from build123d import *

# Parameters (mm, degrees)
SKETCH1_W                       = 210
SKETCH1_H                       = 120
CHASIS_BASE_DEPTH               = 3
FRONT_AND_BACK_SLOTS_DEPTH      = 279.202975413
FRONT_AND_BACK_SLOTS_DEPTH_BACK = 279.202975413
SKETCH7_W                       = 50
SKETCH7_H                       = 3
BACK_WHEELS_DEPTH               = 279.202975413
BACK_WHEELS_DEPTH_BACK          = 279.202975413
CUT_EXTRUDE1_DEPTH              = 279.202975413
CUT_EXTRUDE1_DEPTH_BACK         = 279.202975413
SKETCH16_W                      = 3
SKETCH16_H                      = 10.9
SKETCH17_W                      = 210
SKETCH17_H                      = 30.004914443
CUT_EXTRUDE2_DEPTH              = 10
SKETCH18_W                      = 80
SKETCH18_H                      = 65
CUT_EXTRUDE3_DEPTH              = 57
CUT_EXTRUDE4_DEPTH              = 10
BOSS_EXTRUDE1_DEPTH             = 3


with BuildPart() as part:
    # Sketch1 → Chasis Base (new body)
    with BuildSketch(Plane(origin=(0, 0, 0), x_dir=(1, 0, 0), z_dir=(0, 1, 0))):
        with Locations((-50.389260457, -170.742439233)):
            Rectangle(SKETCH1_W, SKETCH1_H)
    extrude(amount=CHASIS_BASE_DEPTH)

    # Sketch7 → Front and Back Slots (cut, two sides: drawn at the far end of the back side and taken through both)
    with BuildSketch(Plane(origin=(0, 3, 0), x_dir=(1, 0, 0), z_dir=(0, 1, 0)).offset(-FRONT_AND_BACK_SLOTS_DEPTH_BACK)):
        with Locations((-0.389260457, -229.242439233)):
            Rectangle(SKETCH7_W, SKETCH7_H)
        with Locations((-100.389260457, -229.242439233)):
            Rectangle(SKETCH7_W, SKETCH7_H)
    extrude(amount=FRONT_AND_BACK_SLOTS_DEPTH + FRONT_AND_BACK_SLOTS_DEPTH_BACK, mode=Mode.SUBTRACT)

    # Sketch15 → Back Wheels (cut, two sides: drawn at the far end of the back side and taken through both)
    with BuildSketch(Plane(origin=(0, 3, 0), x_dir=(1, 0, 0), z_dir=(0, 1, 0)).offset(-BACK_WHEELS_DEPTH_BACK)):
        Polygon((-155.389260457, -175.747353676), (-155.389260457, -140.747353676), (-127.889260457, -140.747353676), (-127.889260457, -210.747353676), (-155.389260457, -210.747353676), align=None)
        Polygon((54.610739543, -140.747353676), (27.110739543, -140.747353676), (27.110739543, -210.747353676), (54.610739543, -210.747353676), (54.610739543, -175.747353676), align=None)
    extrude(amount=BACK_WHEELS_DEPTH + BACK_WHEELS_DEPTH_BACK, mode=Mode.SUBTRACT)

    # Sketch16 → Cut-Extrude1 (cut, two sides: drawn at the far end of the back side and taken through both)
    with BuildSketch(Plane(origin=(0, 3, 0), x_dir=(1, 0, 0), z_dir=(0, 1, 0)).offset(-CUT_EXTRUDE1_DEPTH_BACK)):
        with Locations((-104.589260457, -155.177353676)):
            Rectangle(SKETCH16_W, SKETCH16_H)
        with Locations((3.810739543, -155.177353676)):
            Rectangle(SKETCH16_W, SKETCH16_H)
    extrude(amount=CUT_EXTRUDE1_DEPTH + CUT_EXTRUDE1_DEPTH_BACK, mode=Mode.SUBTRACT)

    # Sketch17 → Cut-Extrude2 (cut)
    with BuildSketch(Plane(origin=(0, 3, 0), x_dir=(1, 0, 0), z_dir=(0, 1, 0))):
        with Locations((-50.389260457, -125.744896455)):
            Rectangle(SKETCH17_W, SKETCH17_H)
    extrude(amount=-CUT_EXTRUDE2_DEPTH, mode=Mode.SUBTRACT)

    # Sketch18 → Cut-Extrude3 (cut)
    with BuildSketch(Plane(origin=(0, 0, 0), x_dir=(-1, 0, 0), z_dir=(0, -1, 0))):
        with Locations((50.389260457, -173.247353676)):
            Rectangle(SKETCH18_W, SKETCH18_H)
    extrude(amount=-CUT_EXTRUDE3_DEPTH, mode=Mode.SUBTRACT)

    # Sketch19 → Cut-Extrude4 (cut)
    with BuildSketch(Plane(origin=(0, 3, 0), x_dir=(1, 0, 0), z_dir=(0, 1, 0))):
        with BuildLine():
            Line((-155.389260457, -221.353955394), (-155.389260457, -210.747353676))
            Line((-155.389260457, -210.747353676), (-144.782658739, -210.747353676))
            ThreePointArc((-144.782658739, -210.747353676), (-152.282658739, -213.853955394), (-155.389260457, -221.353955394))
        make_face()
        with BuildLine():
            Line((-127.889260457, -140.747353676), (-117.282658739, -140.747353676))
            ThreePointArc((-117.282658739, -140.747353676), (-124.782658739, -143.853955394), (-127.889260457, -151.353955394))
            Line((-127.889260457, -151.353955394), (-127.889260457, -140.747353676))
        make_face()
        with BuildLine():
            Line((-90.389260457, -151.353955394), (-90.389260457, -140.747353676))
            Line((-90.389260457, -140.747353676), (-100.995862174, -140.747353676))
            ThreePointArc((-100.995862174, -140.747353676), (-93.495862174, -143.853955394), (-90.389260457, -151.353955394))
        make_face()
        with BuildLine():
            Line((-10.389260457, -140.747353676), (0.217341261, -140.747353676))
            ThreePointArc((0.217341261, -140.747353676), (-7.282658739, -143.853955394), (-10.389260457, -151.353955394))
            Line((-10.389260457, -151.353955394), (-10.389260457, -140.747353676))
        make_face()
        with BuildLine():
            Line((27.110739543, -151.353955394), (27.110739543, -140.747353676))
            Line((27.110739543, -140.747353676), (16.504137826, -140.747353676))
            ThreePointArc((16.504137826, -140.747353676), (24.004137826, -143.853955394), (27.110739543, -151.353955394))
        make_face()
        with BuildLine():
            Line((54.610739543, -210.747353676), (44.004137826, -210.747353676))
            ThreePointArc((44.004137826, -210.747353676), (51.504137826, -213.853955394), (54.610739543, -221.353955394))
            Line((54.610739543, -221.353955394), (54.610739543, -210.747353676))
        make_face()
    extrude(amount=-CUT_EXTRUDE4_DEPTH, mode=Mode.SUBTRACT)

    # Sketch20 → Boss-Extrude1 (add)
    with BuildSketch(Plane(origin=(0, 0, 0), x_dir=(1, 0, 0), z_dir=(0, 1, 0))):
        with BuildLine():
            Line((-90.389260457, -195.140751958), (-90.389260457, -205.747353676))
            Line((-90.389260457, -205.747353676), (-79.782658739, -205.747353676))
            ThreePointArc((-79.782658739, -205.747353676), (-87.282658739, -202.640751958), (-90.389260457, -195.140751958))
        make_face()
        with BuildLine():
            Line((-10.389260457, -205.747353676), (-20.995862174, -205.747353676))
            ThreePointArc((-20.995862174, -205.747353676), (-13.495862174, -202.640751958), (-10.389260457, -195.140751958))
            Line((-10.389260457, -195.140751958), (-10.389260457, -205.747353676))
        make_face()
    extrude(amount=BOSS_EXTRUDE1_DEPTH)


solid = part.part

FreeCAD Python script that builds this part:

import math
import FreeCAD as App
import Part
import Sketcher

doc = App.newDocument("Part")
params = doc.addObject("Spreadsheet::Sheet", "Params")
for row, (alias, value) in enumerate([
    ("sketch1_width", "210 mm"),
    ("sketch1_height", "120 mm"),
    ("pad1_length", "3 mm"),
    ("sketch2_width", "50 mm"),
    ("sketch2_height", "3 mm"),
    ("sketch3_height", "70 mm"),
    ("sketch3_width", "27.5 mm"),
    ("sketch4_width", "3 mm"),
    ("sketch4_height", "10.9 mm"),
    ("sketch5_width", "210 mm"),
    ("pocket4_length", "10 mm"),
    ("sketch6_width", "80 mm"),
    ("sketch6_height", "65 mm"),
    ("pocket5_length", "57 mm"),
    ("pocket6_length", "10 mm"),
    ("pad2_length", "3 mm"),
], start=1):
    params.set(f"A{row}", alias)
    params.set(f"B{row}", "=" + value)
    params.setAlias(f"B{row}", alias)

body = doc.addObject("PartDesign::Body", "Body")

sketch1 = body.newObject("Sketcher::SketchObject", "Sketch")
sketch1.AttachmentSupport = (doc.getObject("XZ_Plane"), [""])
sketch1.MapMode = "FlatFace"
sketch1.addGeometry([
    Part.LineSegment(App.Vector(-155, 111, 0), App.Vector(-155, 231, 0)),
    Part.LineSegment(App.Vector(-155, 231, 0), App.Vector(55, 231, 0)),
    Part.LineSegment(App.Vector(55, 231, 0), App.Vector(55, 111, 0)),
    Part.LineSegment(App.Vector(55, 111, 0), App.Vector(-155, 111, 0)),
], False)
sketch1.addConstraint([
    Sketcher.Constraint("Coincident", 0, 2, 1, 1),
    Sketcher.Constraint("Coincident", 1, 2, 2, 1),
    Sketcher.Constraint("Coincident", 2, 2, 3, 1),
    Sketcher.Constraint("Coincident", 3, 2, 0, 1),
    Sketcher.Constraint("Vertical", 0),
    Sketcher.Constraint("Horizontal", 1),
    Sketcher.Constraint("Vertical", 2),
    Sketcher.Constraint("Horizontal", 3),
    Sketcher.Constraint("DistanceX", 1, 1, 1, 2, 210.0),
    Sketcher.Constraint("DistanceY", 0, 1, 0, 2, 120.0),
    Sketcher.Constraint("DistanceX", 0, 2, -1, 1, 155.38926),
    Sketcher.Constraint("DistanceY", -1, 1, 0, 2, 230.742439),
])
sketch1.setExpression("Constraints[8]", "Params.sketch1_width")
sketch1.setExpression("Constraints[9]", "Params.sketch1_height")
pad1 = body.newObject("PartDesign::Pad", "Pad")
pad1.Profile = sketch1
pad1.setExpression("Length", "Params.pad1_length")
pad1.Reversed = True

sketch2 = body.newObject("Sketcher::SketchObject", "Sketch001")
sketch2.AttachmentSupport = (doc.getObject("XZ_Plane"), [""])
sketch2.MapMode = "FlatFace"
sketch2.AttachmentOffset = App.Placement(App.Vector(0, 0, -3), App.Rotation())
sketch2.addGeometry([
    Part.LineSegment(App.Vector(-25.4, 227.7, 0), App.Vector(-25.4, 230.7, 0)),
    Part.LineSegment(App.Vector(-25.4, 230.7, 0), App.Vector(24.6, 230.7, 0)),
    Part.LineSegment(App.Vector(24.6, 230.7, 0), App.Vector(24.6, 227.7, 0)),
    Part.LineSegment(App.Vector(24.6, 227.7, 0), App.Vector(-25.4, 227.7, 0)),
    Part.LineSegment(App.Vector(-125.4, 227.7, 0), App.Vector(-125.4, 230.7, 0)),
    Part.LineSegment(App.Vector(-125.4, 230.7, 0), App.Vector(-75.4, 230.7, 0)),
    Part.LineSegment(App.Vector(-75.4, 230.7, 0), App.Vector(-75.4, 227.7, 0)),
    Part.LineSegment(App.Vector(-75.4, 227.7, 0), App.Vector(-125.4, 227.7, 0)),
], False)
sketch2.addConstraint([
    Sketcher.Constraint("Coincident", 0, 2, 1, 1),
    Sketcher.Constraint("Coincident", 1, 2, 2, 1),
    Sketcher.Constraint("Coincident", 2, 2, 3, 1),
    Sketcher.Constraint("Coincident", 3, 2, 0, 1),
    Sketcher.Constraint("Coincident", 4, 2, 5, 1),
    Sketcher.Constraint("Coincident", 5, 2, 6, 1),
    Sketcher.Constraint("Coincident", 6, 2, 7, 1),
    Sketcher.Constraint("Coincident", 7, 2, 4, 1),
    Sketcher.Constraint("Vertical", 0),
    Sketcher.Constraint("Horizontal", 1),
    Sketcher.Constraint("Vertical", 2),
    Sketcher.Constraint("Horizontal", 3),
    Sketcher.Constraint("Vertical", 4),
    Sketcher.Constraint("Horizontal", 5),
    Sketcher.Constraint("Vertical", 6),
    Sketcher.Constraint("Horizontal", 7),
    Sketcher.Constraint("Horizontal", 1, 2, 4, 2),
    Sketcher.Constraint("Horizontal", 3, 2, 6, 2),
    Sketcher.Constraint("Equal", 3, 5),
    Sketcher.Constraint("DistanceX", 1, 1, 1, 2, 50.0),
    Sketcher.Constraint("DistanceY", 0, 1, 0, 2, 3.0),
    Sketcher.Constraint("DistanceX", 4, 2, 0, 2, 100.0),
    Sketcher.Constraint("DistanceX", 0, 2, -1, 1, 25.38926),
    Sketcher.Constraint("DistanceY", -1, 1, 0, 2, 230.742439),
])
sketch2.setExpression("Constraints[19]", "Params.sketch2_width")
sketch2.setExpression("Constraints[20]", "Params.sketch2_height")
pocket1 = body.newObject("PartDesign::Pocket", "Pocket")
pocket1.Profile = sketch2
pocket1.Type = "ThroughAll"
pocket1.Midplane = True

sketch3 = body.newObject("Sketcher::SketchObject", "Sketch002")
sketch3.AttachmentSupport = (doc.getObject("XZ_Plane"), [""])
sketch3.MapMode = "FlatFace"
sketch3.AttachmentOffset = App.Placement(App.Vector(0, 0, -3), App.Rotation())
sketch3.addGeometry([
    Part.LineSegment(App.Vector(-155, 141, 0), App.Vector(-155, 211, 0)),
    Part.LineSegment(App.Vector(-155, 211, 0), App.Vector(-128, 211, 0)),
    Part.LineSegment(App.Vector(-128, 211, 0), App.Vector(-128, 141, 0)),
    Part.LineSegment(App.Vector(-128, 141, 0), App.Vector(-155, 141, 0)),
    Part.LineSegment(App.Vector(55, 141, 0), App.Vector(27, 141, 0)),
    Part.LineSegment(App.Vector(27, 141, 0), App.Vector(27, 211, 0)),
    Part.LineSegment(App.Vector(27, 211, 0), App.Vector(55, 211, 0)),
    Part.LineSegment(App.Vector(55, 211, 0), App.Vector(55, 141, 0)),
], False)
sketch3.addConstraint([
    Sketcher.Constraint("Coincident", 0, 2, 1, 1),
    Sketcher.Constraint("Coincident", 1, 2, 2, 1),
    Sketcher.Constraint("Coincident", 2, 2, 3, 1),
    Sketcher.Constraint("Coincident", 3, 2, 0, 1),
    Sketcher.Constraint("Coincident", 4, 2, 5, 1),
    Sketcher.Constraint("Coincident", 5, 2, 6, 1),
    Sketcher.Constraint("Coincident", 6, 2, 7, 1),
    Sketcher.Constraint("Coincident", 7, 2, 4, 1),
    Sketcher.Constraint("Vertical", 0),
    Sketcher.Constraint("Horizontal", 1),
    Sketcher.Constraint("Vertical", 2),
    Sketcher.Constraint("Horizontal", 3),
    Sketcher.Constraint("Horizontal", 4),
    Sketcher.Constraint("Vertical", 5),
    Sketcher.Constraint("Horizontal", 6),
    Sketcher.Constraint("Vertical", 7),
    Sketcher.Constraint("Horizontal", 3, 2, 4, 2),
    Sketcher.Constraint("Horizontal", 1, 2, 5, 2),
    Sketcher.Constraint("Equal", 3, 4),
    Sketcher.Constraint("DistanceY", 0, 1, 0, 2, 70.0),
    Sketcher.Constraint("DistanceX", 1, 1, 1, 2, 27.5),
    Sketcher.Constraint("DistanceX", 2, 2, 4, 2, 155.0),
    Sketcher.Constraint("DistanceX", 0, 2, -1, 1, 155.38926),
    Sketcher.Constraint("DistanceY", -1, 1, 0, 2, 210.747354),
])
sketch3.setExpression("Constraints[19]", "Params.sketch3_height")
sketch3.setExpression("Constraints[20]", "Params.sketch3_width")
pocket2 = body.newObject("PartDesign::Pocket", "Pocket001")
pocket2.Profile = sketch3
pocket2.Type = "ThroughAll"
pocket2.Midplane = True

sketch4 = body.newObject("Sketcher::SketchObject", "Sketch003")
sketch4.AttachmentSupport = (doc.getObject("XZ_Plane"), [""])
sketch4.MapMode = "FlatFace"
sketch4.AttachmentOffset = App.Placement(App.Vector(0, 0, -3), App.Rotation())
sketch4.addGeometry([
    Part.LineSegment(App.Vector(-106.1, 149.7, 0), App.Vector(-106.1, 160.6, 0)),
    Part.LineSegment(App.Vector(-106.1, 160.6, 0), App.Vector(-103.1, 160.6, 0)),
    Part.LineSegment(App.Vector(-103.1, 160.6, 0), App.Vector(-103.1, 149.7, 0)),
    Part.LineSegment(App.Vector(-103.1, 149.7, 0), App.Vector(-106.1, 149.7, 0)),
    Part.LineSegment(App.Vector(2.3, 149.7, 0), App.Vector(2.3, 160.6, 0)),
    Part.LineSegment(App.Vector(2.3, 160.6, 0), App.Vector(5.3, 160.6, 0)),
    Part.LineSegment(App.Vector(5.3, 160.6, 0), App.Vector(5.3, 149.7, 0)),
    Part.LineSegment(App.Vector(5.3, 149.7, 0), App.Vector(2.3, 149.7, 0)),
], False)
sketch4.addConstraint([
    Sketcher.Constraint("Coincident", 0, 2, 1, 1),
    Sketcher.Constraint("Coincident", 1, 2, 2, 1),
    Sketcher.Constraint("Coincident", 2, 2, 3, 1),
    Sketcher.Constraint("Coincident", 3, 2, 0, 1),
    Sketcher.Constraint("Coincident", 4, 2, 5, 1),
    Sketcher.Constraint("Coincident", 5, 2, 6, 1),
    Sketcher.Constraint("Coincident", 6, 2, 7, 1),
    Sketcher.Constraint("Coincident", 7, 2, 4, 1),
    Sketcher.Constraint("Vertical", 0),
    Sketcher.Constraint("Horizontal", 1),
    Sketcher.Constraint("Vertical", 2),
    Sketcher.Constraint("Horizontal", 3),
    Sketcher.Constraint("Vertical", 4),
    Sketcher.Constraint("Horizontal", 5),
    Sketcher.Constraint("Vertical", 6),
    Sketcher.Constraint("Horizontal", 7),
    Sketcher.Constraint("Horizontal", 1, 2, 4, 2),
    Sketcher.Constraint("Horizontal", 3, 2, 6, 2),
    Sketcher.Constraint("Equal", 3, 5),
    Sketcher.Constraint("DistanceX", 1, 1, 1, 2, 3.0),
    Sketcher.Constraint("DistanceY", 0, 1, 0, 2, 10.9),
    Sketcher.Constraint("DistanceX", 1, 2, 4, 2, 105.4),
    Sketcher.Constraint("DistanceX", 0, 2, -1, 1, 106.08926),
    Sketcher.Constraint("DistanceY", -1, 1, 0, 2, 160.627354),
])
sketch4.setExpression("Constraints[19]", "Params.sketch4_width")
sketch4.setExpression("Constraints[20]", "Params.sketch4_height")
pocket3 = body.newObject("PartDesign::Pocket", "Pocket002")
pocket3.Profile = sketch4
pocket3.Type = "ThroughAll"
pocket3.Midplane = True

sketch5 = body.newObject("Sketcher::SketchObject", "Sketch004")
sketch5.AttachmentSupport = (doc.getObject("XZ_Plane"), [""])
sketch5.MapMode = "FlatFace"
sketch5.AttachmentOffset = App.Placement(App.Vector(0, 0, -3), App.Rotation())
sketch5.addGeometry([
    Part.LineSegment(App.Vector(-155, 111, 0), App.Vector(-155, 141, 0)),
    Part.LineSegment(App.Vector(-155, 141, 0), App.Vector(55, 141, 0)),
    Part.LineSegment(App.Vector(55, 141, 0), App.Vector(55, 111, 0)),
    Part.LineSegment(App.Vector(55, 111, 0), App.Vector(-155, 111, 0)),
], False)
sketch5.addConstraint([
    Sketcher.Constraint("Coincident", 0, 2, 1, 1),
    Sketcher.Constraint("Coincident", 1, 2, 2, 1),
    Sketcher.Constraint("Coincident", 2, 2, 3, 1),
    Sketcher.Constraint("Coincident", 3, 2, 0, 1),
    Sketcher.Constraint("Vertical", 0),
    Sketcher.Constraint("Horizontal", 1),
    Sketcher.Constraint("Vertical", 2),
    Sketcher.Constraint("Horizontal", 3),
    Sketcher.Constraint("DistanceX", 1, 1, 1, 2, 210.0),
    Sketcher.Constraint("DistanceY", 0, 1, 0, 2, 30.004914),
    Sketcher.Constraint("DistanceX", 0, 2, -1, 1, 155.38926),
    Sketcher.Constraint("DistanceY", -1, 1, 2, 2, 110.742439),
])
sketch5.setExpression("Constraints[8]", "Params.sketch5_width")
pocket4 = body.newObject("PartDesign::Pocket", "Pocket003")
pocket4.Profile = sketch5
pocket4.setExpression("Length", "Params.pocket4_length")
pocket4.Reversed = True

sketch6 = body.newObject("Sketcher::SketchObject", "Sketch005")
sketch6.AttachmentSupport = (doc.getObject("XZ_Plane"), [""])
sketch6.MapMode = "FlatFace"
sketch6.addGeometry([
    Part.LineSegment(App.Vector(-10, 141, 0), App.Vector(-10, 206, 0)),
    Part.LineSegment(App.Vector(-10, 206, 0), App.Vector(-90, 206, 0)),
    Part.LineSegment(App.Vector(-90, 206, 0), App.Vector(-90, 141, 0)),
    Part.LineSegment(App.Vector(-90, 141, 0), App.Vector(-10, 141, 0)),
], False)
sketch6.addConstraint([
    Sketcher.Constraint("Coincident", 0, 2, 1, 1),
    Sketcher.Constraint("Coincident", 1, 2, 2, 1),
    Sketcher.Constraint("Coincident", 2, 2, 3, 1),
    Sketcher.Constraint("Coincident", 3, 2, 0, 1),
    Sketcher.Constraint("Vertical", 0),
    Sketcher.Constraint("Horizontal", 1),
    Sketcher.Constraint("Vertical", 2),
    Sketcher.Constraint("Horizontal", 3),
    Sketcher.Constraint("DistanceX", 1, 2, 1, 1, 80.0),
    Sketcher.Constraint("DistanceY", 0, 1, 0, 2, 65.0),
    Sketcher.Constraint("DistanceX", 0, 2, -1, 1, 10.38926),
    Sketcher.Constraint("DistanceY", -1, 1, 0, 2, 205.747354),
])
sketch6.setExpression("Constraints[8]", "Params.sketch6_width")
sketch6.setExpression("Constraints[9]", "Params.sketch6_height")
pocket5 = body.newObject("PartDesign::Pocket", "Pocket004")
pocket5.Profile = sketch6
pocket5.setExpression("Length", "Params.pocket5_length")

sketch7 = body.newObject("Sketcher::SketchObject", "Sketch006")
sketch7.AttachmentSupport = (doc.getObject("XZ_Plane"), [""])
sketch7.MapMode = "FlatFace"
sketch7.AttachmentOffset = App.Placement(App.Vector(0, 0, -3), App.Rotation())
sketch7.addGeometry([
    Part.LineSegment(App.Vector(-155, 211, 0), App.Vector(-155, 221, 0)),
    Part.ArcOfCircle(Part.Circle(App.Vector(-145, 221, 0), App.Vector(0, 0, 1), 11), math.radians(180), math.radians(270)),
    Part.LineSegment(App.Vector(-145, 211, 0), App.Vector(-155, 211, 0)),
    Part.LineSegment(App.Vector(-117, 141, 0), App.Vector(-128, 141, 0)),
    Part.LineSegment(App.Vector(-128, 141, 0), App.Vector(-128, 151, 0)),
    Part.ArcOfCircle(Part.Circle(App.Vector(-117, 151, 0), App.Vector(0, 0, 1), 11), math.radians(180), math.radians(270)),
    Part.LineSegment(App.Vector(-90, 151, 0), App.Vector(-90, 141, 0)),
    Part.LineSegment(App.Vector(-90, 141, 0), App.Vector(-101, 141, 0)),
    Part.ArcOfCircle(Part.Circle(App.Vector(-101, 151, 0), App.Vector(0, 0, 1), 11), math.radians(-90), math.radians(0)),
    Part.LineSegment(App.Vector(0, 141, 0), App.Vector(-10, 141, 0)),
    Part.LineSegment(App.Vector(-10, 141, 0), App.Vector(-10, 151, 0)),
    Part.ArcOfCircle(Part.Circle(App.Vector(0, 151, 0), App.Vector(0, 0, 1), 11), math.radians(180), math.radians(270)),
    Part.LineSegment(App.Vector(27, 151, 0), App.Vector(27, 141, 0)),
    Part.LineSegment(App.Vector(27, 141, 0), App.Vector(17, 141, 0)),
    Part.ArcOfCircle(Part.Circle(App.Vector(17, 151, 0), App.Vector(0, 0, 1), 11), math.radians(-90), math.radians(0)),
    Part.LineSegment(App.Vector(55, 211, 0), App.Vector(44, 211, 0)),
    Part.ArcOfCircle(Part.Circle(App.Vector(44, 221, 0), App.Vector(0, 0, 1), 11), math.radians(-90), math.radians(0)),
    Part.LineSegment(App.Vector(55, 221, 0), App.Vector(55, 211, 0)),
], False)
sketch7.addConstraint([
    Sketcher.Constraint("Tangent", 0, 2, 1, 1),
    Sketcher.Constraint("Tangent", 1, 2, 2, 1),
    Sketcher.Constraint("Coincident", 2, 2, 0, 1),
    Sketcher.Constraint("Coincident", 3, 2, 4, 1),
    Sketcher.Constraint("Tangent", 4, 2, 5, 1),
    Sketcher.Constraint("Tangent", 5, 2, 3, 1),
    Sketcher.Constraint("Coincident", 6, 2, 7, 1),
    Sketcher.Constraint("Tangent", 7, 2, 8, 1),
    Sketcher.Constraint("Tangent", 8, 2, 6, 1),
    Sketcher.Constraint("Coincident", 9, 2, 10, 1),
    Sketcher.Constraint("Tangent", 10, 2, 11, 1),
    Sketcher.Constraint("Tangent", 11, 2, 9, 1),
    Sketcher.Constraint("Coincident", 12, 2, 13, 1),
    Sketcher.Constraint("Tangent", 13, 2, 14, 1),
    Sketcher.Constraint("Tangent", 14, 2, 12, 1),
    Sketcher.Constraint("Tangent", 15, 2, 16, 1),
    Sketcher.Constraint("Tangent", 16, 2, 17, 1),
    Sketcher.Constraint("Coincident", 17, 2, 15, 1),
    Sketcher.Constraint("Vertical", 0),
    Sketcher.Constraint("Horizontal", 2),
    Sketcher.Constraint("Horizontal", 3),
    Sketcher.Constraint("Vertical", 4),
    Sketcher.Constraint("Vertical", 6),
    Sketcher.Constraint("Horizontal", 7),
    Sketcher.Constraint("Horizontal", 9),
    Sketcher.Constraint("Vertical", 10),
    Sketcher.Constraint("Vertical", 12),
    Sketcher.Constraint("Horizontal", 13),
    Sketcher.Constraint("Horizontal", 15),
    Sketcher.Constraint("Vertical", 17),
    Sketcher.Constraint("Equal", 1, 5),
    Sketcher.Constraint("Equal", 5, 8),
    Sketcher.Constraint("Equal", 8, 11),
    Sketcher.Constraint("Equal", 11, 14),
    Sketcher.Constraint("Equal", 14, 16),
    Sketcher.Constraint("Horizontal", 5, 3, 8, 3),
    Sketcher.Constraint("Horizontal", 8, 3, 11, 3),
    Sketcher.Constraint("Horizontal", 11, 3, 14, 3),
    Sketcher.Constraint("Horizontal", 1, 3, 16, 3),
    Sketcher.Constraint("DistanceY", 5, 3, 1, 3, 70.0),
    Sketcher.Constraint("DistanceX", 1, 3, 11, 3, 145.0),
    Sketcher.Constraint("DistanceX", 8, 3, 16, 3, 145.0),
    Sketcher.Constraint("DistanceX", 6, 2, 9, 2, 80.0),
    Sketcher.Constraint("Radius", 1, 10.606602),
    Sketcher.Constraint("DistanceX", 1, 3, 5, 3, 27.5),
    Sketcher.Constraint("DistanceX", 8, 3, 14, 3, 117.5),
    Sketcher.Constraint("DistanceX", 1, 3, -1, 1, 144.782659),
    Sketcher.Constraint("DistanceY", -1, 1, 1, 3, 221.353955),
])
pocket6 = body.newObject("PartDesign::Pocket", "Pocket005")
pocket6.Profile = sketch7
pocket6.setExpression("Length", "Params.pocket6_length")
pocket6.Reversed = True

sketch8 = body.newObject("Sketcher::SketchObject", "Sketch007")
sketch8.AttachmentSupport = (doc.getObject("XZ_Plane"), [""])
sketch8.MapMode = "FlatFace"
sketch8.addGeometry([
    Part.LineSegment(App.Vector(-90, 195, 0), App.Vector(-90, 206, 0)),
    Part.LineSegment(App.Vector(-90, 206, 0), App.Vector(-80, 206, 0)),
    Part.ArcOfCircle(Part.Circle(App.Vector(-80, 195, 0), App.Vector(0, 0, 1), 11), math.radians(90), math.radians(180)),
    Part.LineSegment(App.Vector(-21, 206, 0), App.Vector(-10, 206, 0)),
    Part.LineSegment(App.Vector(-10, 206, 0), App.Vector(-10, 195, 0)),
    Part.ArcOfCircle(Part.Circle(App.Vector(-21, 195, 0), App.Vector(0, 0, 1), 11), math.radians(0), math.radians(90)),
], False)
sketch8.addConstraint([
    Sketcher.Constraint("Coincident", 0, 2, 1, 1),
    Sketcher.Constraint("Tangent", 1, 2, 2, 1),
    Sketcher.Constraint("Tangent", 2, 2, 0, 1),
    Sketcher.Constraint("Coincident", 3, 2, 4, 1),
    Sketcher.Constraint("Tangent", 4, 2, 5, 1),
    Sketcher.Constraint("Tangent", 5, 2, 3, 1),
    Sketcher.Constraint("Vertical", 0),
    Sketcher.Constraint("Horizontal", 1),
    Sketcher.Constraint("Horizontal", 3),
    Sketcher.Constraint("Vertical", 4),
    Sketcher.Constraint("Equal", 2, 5),
    Sketcher.Constraint("Horizontal", 2, 3, 5, 3),
    Sketcher.Constraint("DistanceX", 0, 2, 3, 2, 80.0),
    Sketcher.Constraint("Radius", 2, 10.606602),
    Sketcher.Constraint("DistanceX", 2, 3, -1, 1, 79.782659),
    Sketcher.Constraint("DistanceY", -1, 1, 2, 3, 195.140752),
])
pad2 = body.newObject("PartDesign::Pad", "Pad001")
pad2.Profile = sketch8
pad2.setExpression("Length", "Params.pad2_length")
pad2.Reversed = True

doc.recompute()
